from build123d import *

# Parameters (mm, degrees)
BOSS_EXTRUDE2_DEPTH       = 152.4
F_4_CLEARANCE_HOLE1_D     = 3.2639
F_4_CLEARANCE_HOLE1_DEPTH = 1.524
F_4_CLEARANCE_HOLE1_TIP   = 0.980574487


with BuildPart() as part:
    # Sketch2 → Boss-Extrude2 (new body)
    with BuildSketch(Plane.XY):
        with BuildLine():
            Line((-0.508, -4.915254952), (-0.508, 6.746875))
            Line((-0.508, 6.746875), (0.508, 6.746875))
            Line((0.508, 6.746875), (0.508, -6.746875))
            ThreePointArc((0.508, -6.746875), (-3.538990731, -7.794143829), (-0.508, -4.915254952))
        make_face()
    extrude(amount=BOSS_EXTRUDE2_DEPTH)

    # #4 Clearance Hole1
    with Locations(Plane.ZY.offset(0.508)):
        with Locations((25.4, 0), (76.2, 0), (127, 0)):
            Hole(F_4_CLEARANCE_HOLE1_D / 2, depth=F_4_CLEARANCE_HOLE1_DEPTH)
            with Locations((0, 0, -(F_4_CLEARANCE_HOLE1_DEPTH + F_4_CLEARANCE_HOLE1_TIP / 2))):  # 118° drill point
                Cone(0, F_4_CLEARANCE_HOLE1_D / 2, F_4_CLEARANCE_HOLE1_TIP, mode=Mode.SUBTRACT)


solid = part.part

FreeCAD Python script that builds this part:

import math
import FreeCAD as App
import Part
import Sketcher

V = App.Vector
Q = App.Units.Quantity

doc = App.newDocument("Part")
body = doc.addObject("PartDesign::Body", "Body")

# Sketch on XY plane
sketch1 = doc.addObject("Sketcher::SketchObject", "Sketch")
body.addObject(sketch1)
sketch1.AttachmentSupport = (doc.XY_Plane, [""])
sketch1.MapMode = "FlatFace"
sketch1.addGeometry([
    Part.LineSegment(V(-0.508, 6.746875, 0), V(-0.508, -4.915255, 0)),
    Part.ArcOfCircle(Part.Circle(V(-1.651, -6.746875, 0), V(0, 0, 1), 2.159), math.radians(58.034281), math.radians(360)),
    Part.LineSegment(V(0.508, -6.746875, 0), V(0.508, 6.746875, 0)),
    Part.LineSegment(V(0.508, 6.746875, 0), V(-0.508, 6.746875, 0)),
], False)
sketch1.addConstraint([
    Sketcher.Constraint("Coincident", 0, 2, 1, 1),
    Sketcher.Constraint("Tangent", 1, 2, 2, 1),
    Sketcher.Constraint("Coincident", 2, 2, 3, 1),
    Sketcher.Constraint("Coincident", 3, 2, 0, 1),
    Sketcher.Constraint("Vertical", 0),
    Sketcher.Constraint("Vertical", 2),
    Sketcher.Constraint("Horizontal", 3),
    Sketcher.Constraint("Symmetric", 1, 2, 3, 2, -1, 1),
    Sketcher.Constraint("Radius", 1, Q("0.085 in")),
    Sketcher.Constraint("DistanceX", 3, 2, 3, 1, Q("0.04 in")),
    Sketcher.Constraint("DistanceY", 2, 1, 2, 2, Q("0.53125 in")),
])
pad1 = doc.addObject("PartDesign::Pad", "Pad")
body.addObject(pad1)
pad1.Profile = sketch1
pad1.Length = Q("6 in")

# Sketch on YZ plane
sketch2 = doc.addObject("Sketcher::SketchObject", "Sketch001")
body.addObject(sketch2)
sketch2.AttachmentSupport = (doc.YZ_Plane, [""])
sketch2.MapMode = "FlatFace"
sketch2.AttachmentOffset = App.Placement(V(0, 0, -0.02 * 25.4), App.Rotation())
sketch2.addGeometry([
    Part.Circle(V(0, 25.4, 0), V(0, 0, 1), 1.63195),
    Part.Circle(V(0, 76.2, 0), V(0, 0, 1), 1.63195),
    Part.Circle(V(0, 127, 0), V(0, 0, 1), 1.63195),
], False)
sketch2.addConstraint([
    Sketcher.Constraint("Equal", 0, 1),
    Sketcher.Constraint("Equal", 1, 2),
    Sketcher.Constraint("PointOnObject", 0, 3, -2),
    Sketcher.Constraint("PointOnObject", 1, 3, -2),
    Sketcher.Constraint("PointOnObject", 2, 3, -2),
    Sketcher.Constraint("DistanceY", -1, 1, 0, 3, Q("1 in")),
    Sketcher.Constraint("DistanceY", -1, 1, 1, 3, Q("3 in")),
    Sketcher.Constraint("DistanceY", -1, 1, 2, 3, Q("5 in")),
    Sketcher.Constraint("Diameter", 0, Q("0.1285 in")),
])
doc.recompute()
hole = doc.addObject("PartDesign::Hole", "Hole")
body.addObject(hole)
hole.Profile = sketch2
hole.ThreadType = "None"
hole.Diameter = Q("0.1285 in")
hole.DepthType = "Dimension"
hole.Depth = Q("0.06 in")
hole.DrillPoint = "Angled"
hole.DrillPointAngle = 118
hole.Reversed = True

doc.recompute()
